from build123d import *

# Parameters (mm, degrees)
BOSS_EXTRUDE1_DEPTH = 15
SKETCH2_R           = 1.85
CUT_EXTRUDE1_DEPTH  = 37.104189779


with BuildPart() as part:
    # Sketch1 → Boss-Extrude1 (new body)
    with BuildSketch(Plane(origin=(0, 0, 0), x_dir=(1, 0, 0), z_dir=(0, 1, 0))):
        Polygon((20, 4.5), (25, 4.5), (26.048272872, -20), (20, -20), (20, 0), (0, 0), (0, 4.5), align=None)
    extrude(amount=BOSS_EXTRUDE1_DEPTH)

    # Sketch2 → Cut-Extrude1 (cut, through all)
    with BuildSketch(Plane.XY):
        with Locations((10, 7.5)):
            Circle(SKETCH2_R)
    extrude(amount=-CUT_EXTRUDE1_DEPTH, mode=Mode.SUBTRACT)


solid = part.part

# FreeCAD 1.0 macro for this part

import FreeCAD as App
import Part
import Sketcher
from FreeCAD import Vector
Q = App.Units.Quantity


def add_polygon(sketch, points):
    """Adds a closed chain of lines whose ends are joined by coincident constraints."""
    first, n = sketch.GeometryCount, len(points)
    for a, b in zip(points, points[1:] + points[:1]):
        sketch.addGeometry(Part.LineSegment(App.Vector(*a, 0), App.Vector(*b, 0)), False)
    for i in range(n):
        sketch.addConstraint(Sketcher.Constraint("Coincident", first + i, 2, first + (i + 1) % n, 1))

doc = App.newDocument("Part")
body = doc.addObject("PartDesign::Body", "Body")

# Sketch on XZ plane
sketch1 = doc.addObject("Sketcher::SketchObject", "Sketch")
body.addObject(sketch1)
sketch1.AttachmentSupport = (doc.XZ_Plane, [""])
sketch1.MapMode = "FlatFace"
add_polygon(sketch1, [(25, -4.5), (0, -4.5), (0, 0), (20, 0), (20, 20), (26, 20)])  # lines 0-5
sketch1.addConstraint([
    Sketcher.Constraint("Horizontal", 0),
    Sketcher.Constraint("Vertical", 1),
    Sketcher.Constraint("Horizontal", 2),
    Sketcher.Constraint("Vertical", 3),
    Sketcher.Constraint("Horizontal", 4),
    Sketcher.Constraint("Coincident", 1, 2, -1, 1),
    Sketcher.Constraint("Equal", 2, 3),
    Sketcher.Constraint("DistanceX", 0, 2, 0, 1, Q("25 mm")),
    Sketcher.Constraint("DistanceX", 2, 1, 2, 2, Q("20 mm")),
    Sketcher.Constraint("DistanceY", 1, 1, 1, 2, Q("4.5 mm")),
    Sketcher.Constraint("Angle", 5, Q("-92.45 deg")),
])
pad1 = doc.addObject("PartDesign::Pad", "Pad")
body.addObject(pad1)
pad1.Profile = sketch1
pad1.Length = 15
pad1.Reversed = True

# Sketch on XY plane
sketch2 = doc.addObject("Sketcher::SketchObject", "Sketch001")
body.addObject(sketch2)
sketch2.AttachmentSupport = (doc.XY_Plane, [""])
sketch2.MapMode = "FlatFace"
sketch2.addGeometry(Part.Circle(Vector(10, 7.5, 0), Vector(0, 0, 1), 1.9), False)
sketch2.addConstraint([
    Sketcher.Constraint("Diameter", 0, Q("3.7 mm")),
    Sketcher.Constraint("DistanceX", -1, 1, 0, 3, Q("10 mm")),
    Sketcher.Constraint("DistanceY", -1, 1, 0, 3, Q("7.5 mm")),
])
pocket1 = doc.addObject("PartDesign::Pocket", "Pocket")
body.addObject(pocket1)
pocket1.Profile = sketch2
pocket1.Type = "ThroughAll"

doc.recompute()
